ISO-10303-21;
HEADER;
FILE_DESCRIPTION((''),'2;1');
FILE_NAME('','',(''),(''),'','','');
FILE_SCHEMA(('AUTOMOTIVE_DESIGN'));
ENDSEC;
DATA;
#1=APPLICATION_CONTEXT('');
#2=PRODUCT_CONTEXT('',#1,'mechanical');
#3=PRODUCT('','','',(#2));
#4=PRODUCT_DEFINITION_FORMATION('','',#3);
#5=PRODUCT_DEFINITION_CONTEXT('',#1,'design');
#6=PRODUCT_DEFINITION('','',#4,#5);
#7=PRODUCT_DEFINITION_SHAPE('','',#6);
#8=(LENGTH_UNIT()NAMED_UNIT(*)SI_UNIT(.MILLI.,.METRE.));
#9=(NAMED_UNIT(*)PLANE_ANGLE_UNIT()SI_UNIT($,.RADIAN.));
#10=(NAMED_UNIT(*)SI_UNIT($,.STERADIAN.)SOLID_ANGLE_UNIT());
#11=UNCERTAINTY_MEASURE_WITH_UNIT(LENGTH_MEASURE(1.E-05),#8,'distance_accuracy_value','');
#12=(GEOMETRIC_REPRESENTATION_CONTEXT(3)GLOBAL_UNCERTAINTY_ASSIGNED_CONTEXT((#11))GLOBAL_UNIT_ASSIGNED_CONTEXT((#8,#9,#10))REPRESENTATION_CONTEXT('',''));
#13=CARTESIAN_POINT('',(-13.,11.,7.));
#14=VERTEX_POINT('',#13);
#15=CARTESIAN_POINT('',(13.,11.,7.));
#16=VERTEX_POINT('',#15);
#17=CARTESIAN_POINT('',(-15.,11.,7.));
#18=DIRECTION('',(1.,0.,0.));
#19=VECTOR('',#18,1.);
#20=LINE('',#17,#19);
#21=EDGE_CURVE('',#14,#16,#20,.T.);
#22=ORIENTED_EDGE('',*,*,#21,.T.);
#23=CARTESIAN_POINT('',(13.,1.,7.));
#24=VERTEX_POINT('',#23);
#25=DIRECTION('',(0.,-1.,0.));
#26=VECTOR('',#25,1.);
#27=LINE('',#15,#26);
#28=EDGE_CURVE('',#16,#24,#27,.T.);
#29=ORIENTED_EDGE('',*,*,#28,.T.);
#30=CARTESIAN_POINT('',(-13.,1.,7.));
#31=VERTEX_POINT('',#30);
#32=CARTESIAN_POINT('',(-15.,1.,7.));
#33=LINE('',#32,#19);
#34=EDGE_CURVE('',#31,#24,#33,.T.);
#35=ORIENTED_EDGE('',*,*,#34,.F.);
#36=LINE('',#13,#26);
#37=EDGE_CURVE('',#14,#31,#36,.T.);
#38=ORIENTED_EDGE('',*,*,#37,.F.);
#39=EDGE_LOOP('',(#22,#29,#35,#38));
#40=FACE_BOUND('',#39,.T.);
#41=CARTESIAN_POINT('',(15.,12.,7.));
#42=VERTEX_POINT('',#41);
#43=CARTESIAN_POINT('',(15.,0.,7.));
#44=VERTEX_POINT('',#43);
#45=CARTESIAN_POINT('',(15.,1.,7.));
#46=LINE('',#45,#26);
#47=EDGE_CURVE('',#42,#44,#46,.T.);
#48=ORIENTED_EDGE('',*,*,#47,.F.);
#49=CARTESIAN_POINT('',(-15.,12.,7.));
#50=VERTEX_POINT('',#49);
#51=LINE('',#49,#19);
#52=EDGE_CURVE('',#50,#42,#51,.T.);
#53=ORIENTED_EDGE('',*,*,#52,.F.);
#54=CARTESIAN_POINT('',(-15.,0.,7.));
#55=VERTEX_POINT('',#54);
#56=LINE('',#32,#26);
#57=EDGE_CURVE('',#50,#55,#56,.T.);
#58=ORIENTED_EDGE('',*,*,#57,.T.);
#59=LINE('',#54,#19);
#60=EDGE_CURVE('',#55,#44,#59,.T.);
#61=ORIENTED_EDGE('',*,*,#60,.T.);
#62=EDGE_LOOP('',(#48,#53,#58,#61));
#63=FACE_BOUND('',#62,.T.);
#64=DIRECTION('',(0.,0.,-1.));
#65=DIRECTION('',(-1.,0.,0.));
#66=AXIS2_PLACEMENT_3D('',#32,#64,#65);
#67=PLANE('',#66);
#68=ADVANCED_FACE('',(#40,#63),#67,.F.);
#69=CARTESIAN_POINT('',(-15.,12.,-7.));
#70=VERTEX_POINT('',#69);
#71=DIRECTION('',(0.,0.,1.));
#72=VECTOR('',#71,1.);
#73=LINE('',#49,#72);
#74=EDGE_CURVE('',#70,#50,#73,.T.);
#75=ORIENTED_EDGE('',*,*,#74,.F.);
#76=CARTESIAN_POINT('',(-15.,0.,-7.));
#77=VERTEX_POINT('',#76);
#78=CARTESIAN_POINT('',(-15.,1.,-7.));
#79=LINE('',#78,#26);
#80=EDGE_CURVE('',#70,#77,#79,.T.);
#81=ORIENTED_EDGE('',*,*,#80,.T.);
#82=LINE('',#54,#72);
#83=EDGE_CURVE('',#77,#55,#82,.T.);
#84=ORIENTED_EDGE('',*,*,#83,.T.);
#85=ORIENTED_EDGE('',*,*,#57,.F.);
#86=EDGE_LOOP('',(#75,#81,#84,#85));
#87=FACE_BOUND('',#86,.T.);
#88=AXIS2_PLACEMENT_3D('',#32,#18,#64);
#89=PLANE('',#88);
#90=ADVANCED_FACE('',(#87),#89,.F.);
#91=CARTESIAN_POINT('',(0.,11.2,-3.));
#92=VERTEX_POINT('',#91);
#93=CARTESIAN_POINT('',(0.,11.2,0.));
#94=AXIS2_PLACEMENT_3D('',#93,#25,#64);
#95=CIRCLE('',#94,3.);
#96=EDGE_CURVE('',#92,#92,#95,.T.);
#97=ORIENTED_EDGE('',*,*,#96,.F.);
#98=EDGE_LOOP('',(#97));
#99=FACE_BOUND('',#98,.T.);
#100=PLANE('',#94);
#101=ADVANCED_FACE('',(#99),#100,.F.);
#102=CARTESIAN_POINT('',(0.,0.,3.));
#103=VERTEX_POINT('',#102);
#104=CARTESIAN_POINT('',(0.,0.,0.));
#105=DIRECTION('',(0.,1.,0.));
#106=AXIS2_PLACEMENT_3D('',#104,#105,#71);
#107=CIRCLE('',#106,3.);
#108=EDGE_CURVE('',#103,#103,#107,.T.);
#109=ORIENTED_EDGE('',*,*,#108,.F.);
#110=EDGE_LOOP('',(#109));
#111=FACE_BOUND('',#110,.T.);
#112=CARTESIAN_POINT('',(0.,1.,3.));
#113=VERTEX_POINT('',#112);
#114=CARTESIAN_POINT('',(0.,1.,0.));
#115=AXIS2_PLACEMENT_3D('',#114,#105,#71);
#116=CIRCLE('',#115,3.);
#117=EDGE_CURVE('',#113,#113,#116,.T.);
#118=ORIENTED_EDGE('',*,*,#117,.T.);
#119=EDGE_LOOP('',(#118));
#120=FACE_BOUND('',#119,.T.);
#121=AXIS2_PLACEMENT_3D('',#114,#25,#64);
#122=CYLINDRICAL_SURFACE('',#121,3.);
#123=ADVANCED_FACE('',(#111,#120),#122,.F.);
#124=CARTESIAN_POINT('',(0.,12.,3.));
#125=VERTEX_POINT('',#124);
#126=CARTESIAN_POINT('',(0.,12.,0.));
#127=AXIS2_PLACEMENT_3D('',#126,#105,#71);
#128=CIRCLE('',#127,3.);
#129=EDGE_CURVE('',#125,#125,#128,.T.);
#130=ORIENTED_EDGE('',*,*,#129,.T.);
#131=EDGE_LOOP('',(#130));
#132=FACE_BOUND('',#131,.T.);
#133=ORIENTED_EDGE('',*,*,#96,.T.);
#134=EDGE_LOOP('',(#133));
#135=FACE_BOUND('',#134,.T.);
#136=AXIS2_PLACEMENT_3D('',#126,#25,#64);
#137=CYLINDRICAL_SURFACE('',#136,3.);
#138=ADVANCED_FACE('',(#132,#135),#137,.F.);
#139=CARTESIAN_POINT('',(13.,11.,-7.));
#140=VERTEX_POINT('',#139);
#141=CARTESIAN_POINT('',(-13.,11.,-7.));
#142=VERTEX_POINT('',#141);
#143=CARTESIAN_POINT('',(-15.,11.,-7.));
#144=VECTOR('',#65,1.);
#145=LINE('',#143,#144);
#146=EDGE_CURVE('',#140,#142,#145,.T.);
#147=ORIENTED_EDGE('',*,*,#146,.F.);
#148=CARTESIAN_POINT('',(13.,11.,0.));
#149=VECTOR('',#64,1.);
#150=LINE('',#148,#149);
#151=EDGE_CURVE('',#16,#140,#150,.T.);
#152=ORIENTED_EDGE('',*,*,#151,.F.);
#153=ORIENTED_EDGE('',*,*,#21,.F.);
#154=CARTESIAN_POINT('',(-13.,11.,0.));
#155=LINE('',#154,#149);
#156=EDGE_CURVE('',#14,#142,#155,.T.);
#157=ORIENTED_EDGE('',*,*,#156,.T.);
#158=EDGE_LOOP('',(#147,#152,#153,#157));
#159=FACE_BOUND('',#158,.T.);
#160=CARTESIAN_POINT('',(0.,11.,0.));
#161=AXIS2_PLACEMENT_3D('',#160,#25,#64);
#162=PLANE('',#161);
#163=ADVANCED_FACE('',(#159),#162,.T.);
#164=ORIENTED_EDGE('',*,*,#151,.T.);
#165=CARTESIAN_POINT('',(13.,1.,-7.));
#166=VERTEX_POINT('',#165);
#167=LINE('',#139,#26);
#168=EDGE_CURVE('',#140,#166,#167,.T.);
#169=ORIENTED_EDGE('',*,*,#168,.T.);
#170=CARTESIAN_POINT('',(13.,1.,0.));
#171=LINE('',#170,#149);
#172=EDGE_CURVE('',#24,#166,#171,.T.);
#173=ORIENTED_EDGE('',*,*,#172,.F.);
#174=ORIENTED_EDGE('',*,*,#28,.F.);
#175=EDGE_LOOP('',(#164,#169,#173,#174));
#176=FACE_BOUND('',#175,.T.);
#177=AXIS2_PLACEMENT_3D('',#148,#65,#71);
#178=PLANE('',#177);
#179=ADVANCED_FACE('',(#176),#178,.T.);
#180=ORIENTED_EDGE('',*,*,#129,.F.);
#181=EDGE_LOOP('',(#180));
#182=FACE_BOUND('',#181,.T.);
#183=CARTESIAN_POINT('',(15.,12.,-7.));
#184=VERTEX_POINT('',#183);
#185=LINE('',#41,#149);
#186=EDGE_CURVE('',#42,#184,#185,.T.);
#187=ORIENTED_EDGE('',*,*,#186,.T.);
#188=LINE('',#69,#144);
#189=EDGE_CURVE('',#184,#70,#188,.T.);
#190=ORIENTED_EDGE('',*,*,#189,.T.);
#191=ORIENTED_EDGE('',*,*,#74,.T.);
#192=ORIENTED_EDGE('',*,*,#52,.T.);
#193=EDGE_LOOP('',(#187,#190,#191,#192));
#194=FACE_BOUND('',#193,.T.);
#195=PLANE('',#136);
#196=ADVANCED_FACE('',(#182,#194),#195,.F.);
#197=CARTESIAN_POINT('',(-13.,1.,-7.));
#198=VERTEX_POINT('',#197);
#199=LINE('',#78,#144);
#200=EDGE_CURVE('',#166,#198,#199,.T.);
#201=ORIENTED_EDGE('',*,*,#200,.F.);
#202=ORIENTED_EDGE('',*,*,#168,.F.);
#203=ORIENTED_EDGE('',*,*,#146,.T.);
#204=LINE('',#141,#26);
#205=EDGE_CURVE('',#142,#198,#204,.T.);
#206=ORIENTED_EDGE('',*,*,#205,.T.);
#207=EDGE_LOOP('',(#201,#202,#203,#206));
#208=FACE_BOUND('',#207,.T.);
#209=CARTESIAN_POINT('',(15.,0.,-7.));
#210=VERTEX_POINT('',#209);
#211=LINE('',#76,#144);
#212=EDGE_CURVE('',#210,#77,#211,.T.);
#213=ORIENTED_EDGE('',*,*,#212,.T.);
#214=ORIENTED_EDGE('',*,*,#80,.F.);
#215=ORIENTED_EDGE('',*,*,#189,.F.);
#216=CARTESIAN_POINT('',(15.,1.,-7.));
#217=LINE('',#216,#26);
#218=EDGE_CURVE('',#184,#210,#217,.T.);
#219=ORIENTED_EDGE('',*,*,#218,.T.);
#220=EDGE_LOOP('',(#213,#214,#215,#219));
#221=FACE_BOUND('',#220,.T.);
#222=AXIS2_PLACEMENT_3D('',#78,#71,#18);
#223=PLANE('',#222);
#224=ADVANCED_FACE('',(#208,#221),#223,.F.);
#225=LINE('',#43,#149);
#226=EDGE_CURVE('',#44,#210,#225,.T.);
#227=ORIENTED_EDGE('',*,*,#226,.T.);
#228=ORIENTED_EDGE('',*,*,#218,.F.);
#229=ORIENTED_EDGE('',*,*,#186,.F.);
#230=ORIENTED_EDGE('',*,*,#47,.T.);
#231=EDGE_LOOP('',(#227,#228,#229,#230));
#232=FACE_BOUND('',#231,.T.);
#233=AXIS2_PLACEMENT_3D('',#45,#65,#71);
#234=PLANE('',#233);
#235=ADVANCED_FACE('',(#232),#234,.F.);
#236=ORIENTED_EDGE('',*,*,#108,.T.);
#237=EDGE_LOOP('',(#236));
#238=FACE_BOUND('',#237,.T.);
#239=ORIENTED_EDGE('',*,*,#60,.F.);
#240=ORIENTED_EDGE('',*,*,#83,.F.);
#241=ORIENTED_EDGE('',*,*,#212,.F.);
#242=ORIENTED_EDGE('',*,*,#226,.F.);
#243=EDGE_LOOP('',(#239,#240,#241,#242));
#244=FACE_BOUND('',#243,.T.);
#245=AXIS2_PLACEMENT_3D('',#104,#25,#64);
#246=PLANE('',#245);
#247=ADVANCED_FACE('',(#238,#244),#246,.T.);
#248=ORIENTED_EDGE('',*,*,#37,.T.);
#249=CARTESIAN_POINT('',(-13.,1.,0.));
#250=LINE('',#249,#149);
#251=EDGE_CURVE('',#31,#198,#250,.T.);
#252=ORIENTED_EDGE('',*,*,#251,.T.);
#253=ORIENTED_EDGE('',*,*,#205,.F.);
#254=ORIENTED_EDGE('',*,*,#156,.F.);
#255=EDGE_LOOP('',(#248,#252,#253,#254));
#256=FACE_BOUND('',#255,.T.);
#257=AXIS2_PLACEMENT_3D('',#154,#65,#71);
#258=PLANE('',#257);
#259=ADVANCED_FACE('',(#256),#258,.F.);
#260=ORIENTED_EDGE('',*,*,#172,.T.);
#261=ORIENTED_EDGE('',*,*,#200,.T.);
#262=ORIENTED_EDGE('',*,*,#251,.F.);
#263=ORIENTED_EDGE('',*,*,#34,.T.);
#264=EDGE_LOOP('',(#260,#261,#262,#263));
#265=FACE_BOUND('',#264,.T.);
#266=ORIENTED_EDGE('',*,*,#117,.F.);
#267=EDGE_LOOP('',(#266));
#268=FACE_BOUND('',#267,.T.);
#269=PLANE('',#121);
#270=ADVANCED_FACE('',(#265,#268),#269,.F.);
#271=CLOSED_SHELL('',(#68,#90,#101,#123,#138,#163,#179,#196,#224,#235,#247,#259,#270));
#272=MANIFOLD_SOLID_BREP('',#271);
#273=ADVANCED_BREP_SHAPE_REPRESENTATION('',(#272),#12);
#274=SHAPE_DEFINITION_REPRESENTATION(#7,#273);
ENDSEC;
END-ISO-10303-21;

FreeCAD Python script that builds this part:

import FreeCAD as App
import Part
import Sketcher
from FreeCAD import Vector

doc = App.newDocument("Part")
params = doc.addObject("Spreadsheet::Sheet", "Params")
for row, (alias, value) in enumerate([
    ("sketch1_diameter", "6 mm"),
    ("sketch1_width", "30 mm"),
    ("sketch1_height", "14 mm"),
    ("pad1_length", "1 mm"),
    ("sketch2_width", "2 mm"),
    ("sketch2_height", "14 mm"),
    ("pad2_length", "10 mm"),
    ("sketch3_diameter", "6 mm"),
    ("sketch3_width", "30 mm"),
    ("sketch3_height", "14 mm"),
    ("pad3_length", "1 mm"),
    ("sketch4_diameter", "6 mm"),
    ("pad4_length", "0.2 mm"),
], start=1):
    params.set(f"A{row}", alias)
    params.set(f"B{row}", "=" + value)
    params.setAlias(f"B{row}", alias)

body = doc.addObject("PartDesign::Body", "Body")

sketch1 = body.newObject("Sketcher::SketchObject", "Sketch")
sketch1.AttachmentSupport = (doc.getObject("XZ_Plane"), [""])
sketch1.MapMode = "FlatFace"
sketch1.addGeometry([
    Part.LineSegment(Vector(-15, -7, 0), Vector(-15, 7, 0)),
    Part.LineSegment(Vector(-15, 7, 0), Vector(15, 7, 0)),
    Part.LineSegment(Vector(15, 7, 0), Vector(15, -7, 0)),
    Part.LineSegment(Vector(15, -7, 0), Vector(-15, -7, 0)),
    Part.Circle(Vector(0, 0, 0), Vector(0, 0, 1), 3),
], False)
sketch1.addConstraint([
    Sketcher.Constraint("Coincident", 0, 2, 1, 1),
    Sketcher.Constraint("Coincident", 1, 2, 2, 1),
    Sketcher.Constraint("Coincident", 2, 2, 3, 1),
    Sketcher.Constraint("Coincident", 3, 2, 0, 1),
    Sketcher.Constraint("Vertical", 0),
    Sketcher.Constraint("Horizontal", 1),
    Sketcher.Constraint("Vertical", 2),
    Sketcher.Constraint("Horizontal", 3),
    Sketcher.Constraint("Coincident", 4, 3, -1, 1),
    Sketcher.Constraint("Symmetric", 0, 2, 2, 2, -1, 1),
    Sketcher.Constraint("Diameter", 4, 6.0),
    Sketcher.Constraint("DistanceX", 1, 1, 1, 2, 30.0),
    Sketcher.Constraint("DistanceY", 0, 1, 0, 2, 14.0),
])
sketch1.setExpression("Constraints[10]", "Params.sketch1_diameter")
sketch1.setExpression("Constraints[11]", "Params.sketch1_width")
sketch1.setExpression("Constraints[12]", "Params.sketch1_height")
pad1 = body.newObject("PartDesign::Pad", "Pad")
pad1.Profile = sketch1
pad1.setExpression("Length", "Params.pad1_length")
pad1.Reversed = True

sketch2 = body.newObject("Sketcher::SketchObject", "Sketch001")
sketch2.AttachmentSupport = (doc.getObject("XZ_Plane"), [""])
sketch2.MapMode = "FlatFace"
sketch2.AttachmentOffset = App.Placement(Vector(0, 0, -1), App.Rotation())
sketch2.addGeometry([
    Part.LineSegment(Vector(-15, -7, 0), Vector(-15, 7, 0)),
    Part.LineSegment(Vector(-15, 7, 0), Vector(-13, 7, 0)),
    Part.LineSegment(Vector(-13, 7, 0), Vector(-13, -7, 0)),
    Part.LineSegment(Vector(-13, -7, 0), Vector(-15, -7, 0)),
    Part.LineSegment(Vector(13, -7, 0), Vector(13, 7, 0)),
    Part.LineSegment(Vector(13, 7, 0), Vector(15, 7, 0)),
    Part.LineSegment(Vector(15, 7, 0), Vector(15, -7, 0)),
    Part.LineSegment(Vector(15, -7, 0), Vector(13, -7, 0)),
], False)
sketch2.addConstraint([
    Sketcher.Constraint("Coincident", 0, 2, 1, 1),
    Sketcher.Constraint("Coincident", 1, 2, 2, 1),
    Sketcher.Constraint("Coincident", 2, 2, 3, 1),
    Sketcher.Constraint("Coincident", 3, 2, 0, 1),
    Sketcher.Constraint("Coincident", 4, 2, 5, 1),
    Sketcher.Constraint("Coincident", 5, 2, 6, 1),
    Sketcher.Constraint("Coincident", 6, 2, 7, 1),
    Sketcher.Constraint("Coincident", 7, 2, 4, 1),
    Sketcher.Constraint("Vertical", 0),
    Sketcher.Constraint("Horizontal", 1),
    Sketcher.Constraint("Vertical", 2),
    Sketcher.Constraint("Horizontal", 3),
    Sketcher.Constraint("Vertical", 4),
    Sketcher.Constraint("Horizontal", 5),
    Sketcher.Constraint("Vertical", 6),
    Sketcher.Constraint("Horizontal", 7),
    Sketcher.Constraint("Symmetric", 2, 2, 4, 2, -1, 1),
    Sketcher.Constraint("Symmetric", 0, 2, 6, 2, -1, 1),
    Sketcher.Constraint("Horizontal", 1, 2, 4, 2),
    Sketcher.Constraint("DistanceX", 1, 1, 1, 2, 2.0),
    Sketcher.Constraint("DistanceY", 0, 1, 0, 2, 14.0),
    Sketcher.Constraint("DistanceX", 0, 2, -1, 1, 15.0),
])
sketch2.setExpression("Constraints[19]", "Params.sketch2_width")
sketch2.setExpression("Constraints[20]", "Params.sketch2_height")
pad2 = body.newObject("PartDesign::Pad", "Pad001")
pad2.Profile = sketch2
pad2.setExpression("Length", "Params.pad2_length")
pad2.Reversed = True

sketch3 = body.newObject("Sketcher::SketchObject", "Sketch002")
sketch3.AttachmentSupport = (doc.getObject("XZ_Plane"), [""])
sketch3.MapMode = "FlatFace"
sketch3.AttachmentOffset = App.Placement(Vector(0, 0, -11), App.Rotation())
sketch3.addGeometry([
    Part.LineSegment(Vector(-15, -7, 0), Vector(-15, 7, 0)),
    Part.LineSegment(Vector(-15, 7, 0), Vector(15, 7, 0)),
    Part.LineSegment(Vector(15, 7, 0), Vector(15, -7, 0)),
    Part.LineSegment(Vector(15, -7, 0), Vector(-15, -7, 0)),
    Part.Circle(Vector(0, 0, 0), Vector(0, 0, 1), 3),
], False)
sketch3.addConstraint([
    Sketcher.Constraint("Coincident", 0, 2, 1, 1),
    Sketcher.Constraint("Coincident", 1, 2, 2, 1),
    Sketcher.Constraint("Coincident", 2, 2, 3, 1),
    Sketcher.Constraint("Coincident", 3, 2, 0, 1),
    Sketcher.Constraint("Vertical", 0),
    Sketcher.Constraint("Horizontal", 1),
    Sketcher.Constraint("Vertical", 2),
    Sketcher.Constraint("Horizontal", 3),
    Sketcher.Constraint("Coincident", 4, 3, -1, 1),
    Sketcher.Constraint("Symmetric", 0, 2, 2, 2, -1, 1),
    Sketcher.Constraint("Diameter", 4, 6.0),
    Sketcher.Constraint("DistanceX", 1, 1, 1, 2, 30.0),
    Sketcher.Constraint("DistanceY", 0, 1, 0, 2, 14.0),
])
sketch3.setExpression("Constraints[10]", "Params.sketch3_diameter")
sketch3.setExpression("Constraints[11]", "Params.sketch3_width")
sketch3.setExpression("Constraints[12]", "Params.sketch3_height")
pad3 = body.newObject("PartDesign::Pad", "Pad002")
pad3.Profile = sketch3
pad3.setExpression("Length", "Params.pad3_length")
pad3.Reversed = True

sketch4 = body.newObject("Sketcher::SketchObject", "Sketch003")
sketch4.AttachmentSupport = (doc.getObject("XZ_Plane"), [""])
sketch4.MapMode = "FlatFace"
sketch4.AttachmentOffset = App.Placement(Vector(0, 0, -11), App.Rotation())
sketch4.addGeometry(Part.Circle(Vector(0, 0, 0), Vector(0, 0, 1), 3), False)
sketch4.addConstraint([
    Sketcher.Constraint("Coincident", 0, 3, -1, 1),
    Sketcher.Constraint("Diameter", 0, 6.0),
])
sketch4.setExpression("Constraints[1]", "Params.sketch4_diameter")
pad4 = body.newObject("PartDesign::Pad", "Pad003")
pad4.Profile = sketch4
pad4.setExpression("Length", "Params.pad4_length")
pad4.Reversed = True

doc.recompute()
